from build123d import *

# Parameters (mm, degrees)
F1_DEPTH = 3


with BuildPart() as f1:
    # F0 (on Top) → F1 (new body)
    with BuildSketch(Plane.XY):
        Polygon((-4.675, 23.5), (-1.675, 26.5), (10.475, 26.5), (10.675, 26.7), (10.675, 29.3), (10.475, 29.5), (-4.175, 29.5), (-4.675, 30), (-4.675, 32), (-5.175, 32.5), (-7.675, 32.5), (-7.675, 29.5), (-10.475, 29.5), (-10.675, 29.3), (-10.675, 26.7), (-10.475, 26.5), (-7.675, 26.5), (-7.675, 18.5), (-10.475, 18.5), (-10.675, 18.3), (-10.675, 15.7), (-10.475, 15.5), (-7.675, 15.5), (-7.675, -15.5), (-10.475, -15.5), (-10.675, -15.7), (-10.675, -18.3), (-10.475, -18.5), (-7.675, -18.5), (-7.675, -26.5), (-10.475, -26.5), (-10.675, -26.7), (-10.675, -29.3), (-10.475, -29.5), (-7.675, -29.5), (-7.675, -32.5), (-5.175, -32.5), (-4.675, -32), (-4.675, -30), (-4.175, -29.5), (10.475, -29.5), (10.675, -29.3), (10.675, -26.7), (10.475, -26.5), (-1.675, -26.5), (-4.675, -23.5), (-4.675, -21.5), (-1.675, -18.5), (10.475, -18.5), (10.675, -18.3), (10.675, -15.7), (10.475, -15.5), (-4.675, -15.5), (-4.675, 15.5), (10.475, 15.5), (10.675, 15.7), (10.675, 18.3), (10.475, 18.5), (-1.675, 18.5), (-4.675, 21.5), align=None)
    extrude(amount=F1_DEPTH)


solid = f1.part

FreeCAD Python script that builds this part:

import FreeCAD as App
import Part
import Sketcher
Q = App.Units.Quantity


def add_polygon(sketch, points):
    """Adds a closed chain of lines whose ends are joined by coincident constraints."""
    first, n = sketch.GeometryCount, len(points)
    for a, b in zip(points, points[1:] + points[:1]):
        sketch.addGeometry(Part.LineSegment(App.Vector(*a, 0), App.Vector(*b, 0)), False)
    for i in range(n):
        sketch.addConstraint(Sketcher.Constraint("Coincident", first + i, 2, first + (i + 1) % n, 1))

doc = App.newDocument("Part")
params = doc.addObject("Spreadsheet::Sheet", "Params")
for row, (alias, value) in enumerate([
    ("sketch1_height", "2 mm"),
    ("sketch1_height2", "3 mm"),
    ("sketch1_height3", "8 mm"),
    ("sketch1_height4", "31 mm"),
    ("sketch1_width", "2.5 mm"),
    ("pad1_length", "3 mm"),
], start=1):
    params.set(f"A{row}", alias)
    params.set(f"B{row}", "=" + value)
    params.setAlias(f"B{row}", alias)

body = doc.addObject("PartDesign::Body", "Body")

sketch1 = body.newObject("Sketcher::SketchObject", "Sketch")
sketch1.AttachmentSupport = (doc.getObject("XY_Plane"), [""])
sketch1.MapMode = "FlatFace"
add_polygon(sketch1, [(-4.67, 23.5), (-1.68, 26.5), (10.47, 26.5), (10.68, 26.7), (10.68, 29.3), (10.47, 29.5), (-4.17, 29.5), (-4.67, 30), (-4.67, 32), (-5.17, 32.5), (-7.67, 32.5), (-7.67, 29.5), (-10.47, 29.5), (-10.68, 29.3), (-10.68, 26.7), (-10.47, 26.5), (-7.67, 26.5), (-7.67, 18.5), (-10.47, 18.5), (-10.68, 18.3), (-10.68, 15.7), (-10.47, 15.5), (-7.67, 15.5), (-7.67, -15.5), (-10.47, -15.5), (-10.68, -15.7), (-10.68, -18.3), (-10.47, -18.5), (-7.67, -18.5), (-7.67, -26.5), (-10.47, -26.5), (-10.68, -26.7), (-10.68, -29.3), (-10.47, -29.5), (-7.67, -29.5), (-7.67, -32.5), (-5.17, -32.5), (-4.67, -32), (-4.67, -30), (-4.17, -29.5), (10.47, -29.5), (10.68, -29.3), (10.68, -26.7), (10.47, -26.5), (-1.68, -26.5), (-4.67, -23.5), (-4.67, -21.5), (-1.68, -18.5), (10.47, -18.5), (10.68, -18.3), (10.68, -15.7), (10.47, -15.5), (-4.67, -15.5), (-4.67, 15.5), (10.47, 15.5), (10.68, 15.7), (10.68, 18.3), (10.47, 18.5), (-1.68, 18.5), (-4.67, 21.5)])
sketch1.addConstraint([
    Sketcher.Constraint("Horizontal", 1),
    Sketcher.Constraint("Vertical", 3),
    Sketcher.Constraint("Horizontal", 5),
    Sketcher.Constraint("Vertical", 7),
    Sketcher.Constraint("Horizontal", 9),
    Sketcher.Constraint("Vertical", 10),
    Sketcher.Constraint("Horizontal", 11),
    Sketcher.Constraint("Vertical", 13),
    Sketcher.Constraint("Horizontal", 15),
    Sketcher.Constraint("Vertical", 16),
    Sketcher.Constraint("Horizontal", 17),
    Sketcher.Constraint("Vertical", 19),
    Sketcher.Constraint("Horizontal", 21),
    Sketcher.Constraint("Vertical", 22),
    Sketcher.Constraint("Horizontal", 23),
    Sketcher.Constraint("Vertical", 25),
    Sketcher.Constraint("Horizontal", 27),
    Sketcher.Constraint("Vertical", 28),
    Sketcher.Constraint("Horizontal", 29),
    Sketcher.Constraint("Vertical", 31),
    Sketcher.Constraint("Horizontal", 33),
    Sketcher.Constraint("Vertical", 34),
    Sketcher.Constraint("Horizontal", 35),
    Sketcher.Constraint("Vertical", 37),
    Sketcher.Constraint("Horizontal", 39),
    Sketcher.Constraint("Vertical", 41),
    Sketcher.Constraint("Horizontal", 43),
    Sketcher.Constraint("Vertical", 45),
    Sketcher.Constraint("Horizontal", 47),
    Sketcher.Constraint("Vertical", 49),
    Sketcher.Constraint("Horizontal", 51),
    Sketcher.Constraint("Vertical", 52),
    Sketcher.Constraint("Horizontal", 53),
    Sketcher.Constraint("Vertical", 55),
    Sketcher.Constraint("Horizontal", 57),
    Sketcher.Constraint("Vertical", 59),
    Sketcher.Constraint("Symmetric", 1, 2, 29, 2, -1, 1),
    Sketcher.Constraint("Symmetric", 2, 2, 30, 2, -1, 1),
    Sketcher.Constraint("Symmetric", 4, 2, 32, 2, -1, 1),
    Sketcher.Constraint("Symmetric", 11, 2, 39, 2, -1, 1),
    Sketcher.Constraint("Symmetric", 12, 2, 40, 2, -1, 1),
    Sketcher.Constraint("Symmetric", 14, 2, 42, 2, -1, 1),
    Sketcher.Constraint("Symmetric", 17, 2, 47, 2, -1, 1),
    Sketcher.Constraint("Symmetric", 18, 2, 48, 2, -1, 1),
    Sketcher.Constraint("Symmetric", 20, 2, 50, 2, -1, 1),
    Sketcher.Constraint("Symmetric", 23, 2, 53, 2, -1, 1),
    Sketcher.Constraint("Symmetric", 24, 2, 54, 2, -1, 1),
    Sketcher.Constraint("Symmetric", 26, 2, 56, 2, -1, 1),
    Sketcher.Constraint("Symmetric", 4, 2, 11, 2, -2),
    Sketcher.Constraint("Symmetric", 3, 2, 12, 2, -2),
    Sketcher.Constraint("Symmetric", 1, 2, 14, 2, -2),
    Sketcher.Constraint("Symmetric", 26, 2, 47, 2, -2),
    Sketcher.Constraint("Symmetric", 25, 2, 48, 2, -2),
    Sketcher.Constraint("Symmetric", 23, 2, 50, 2, -2),
    Sketcher.Constraint("Symmetric", 9, 2, 34, 2, -1),
    Sketcher.Constraint("Symmetric", 7, 2, 36, 2, -1),
    Sketcher.Constraint("Symmetric", 45, 2, 58, 2, -1),
    Sketcher.Constraint("Parallel", 0, 2),
    Sketcher.Constraint("Perpendicular", 2, 4),
    Sketcher.Constraint("Parallel", 4, 6),
    Sketcher.Constraint("Parallel", 6, 8),
    Sketcher.Constraint("Perpendicular", 8, 12),
    Sketcher.Constraint("Perpendicular", 12, 14),
    Sketcher.Constraint("Perpendicular", 14, 18),
    Sketcher.Constraint("Perpendicular", 18, 20),
    Sketcher.Constraint("Perpendicular", 20, 24),
    Sketcher.Constraint("Perpendicular", 30, 32),
    Sketcher.Constraint("Perpendicular", 32, 36),
    Sketcher.Constraint("Parallel", 36, 38),
    Sketcher.Constraint("Perpendicular", 40, 42),
    Sketcher.Constraint("Parallel", 42, 44),
    Sketcher.Constraint("Perpendicular", 44, 46),
    Sketcher.Constraint("Perpendicular", 48, 50),
    Sketcher.Constraint("Perpendicular", 54, 56),
    Sketcher.Constraint("Parallel", 56, 58),
    Sketcher.Constraint("Vertical", 1, 2, 4, 2),
    Sketcher.Constraint("Vertical", 10, 2, 15, 2),
    Sketcher.Constraint("Vertical", 14, 2, 17, 2),
    Sketcher.Constraint("Vertical", 13, 2, 18, 2),
    Sketcher.Constraint("Vertical", 17, 2, 20, 2),
    Sketcher.Constraint("Vertical", 16, 2, 21, 2),
    Sketcher.Constraint("Vertical", 22, 2, 27, 2),
    Sketcher.Constraint("Vertical", 5, 2, 38, 2),
    Sketcher.Constraint("Vertical", 0, 2, 43, 2),
    Sketcher.Constraint("Vertical", 37, 2, 44, 2),
    Sketcher.Constraint("Vertical", 43, 2, 46, 2),
    Sketcher.Constraint("Vertical", 45, 2, 51, 2),
    Sketcher.Constraint("Equal", 13, 19),
    Sketcher.Constraint("Equal", 37, 45),
    Sketcher.Constraint("Equal", 6, 8),
    Sketcher.Constraint("DistanceY", 7, 1, 7, 2, Q("2 mm")),
    Sketcher.Constraint("DistanceY", 10, 2, 10, 1, Q("3 mm")),
    Sketcher.Constraint("DistanceY", 16, 2, 16, 1, Q("8 mm")),
    Sketcher.Constraint("DistanceY", 22, 2, 22, 1, Q("31 mm")),
    Sketcher.Constraint("DistanceX", 9, 2, 9, 1, Q("2.5 mm")),
    Sketcher.Constraint("DistanceX", 11, 2, 11, 1, Q("2.8 mm")),
    Sketcher.Constraint("DistanceY", 3, 1, 3, 2, Q("2.6 mm")),
    Sketcher.Constraint("DistanceY", -1, 1, 6, 2, Q("30 mm")),
    Sketcher.Constraint("DistanceX", 1, 1, 1, 2, Q("12.15 mm")),
])
sketch1.setExpression("Constraints[150]", "Params.sketch1_height")
sketch1.setExpression("Constraints[151]", "Params.sketch1_height2")
sketch1.setExpression("Constraints[152]", "Params.sketch1_height3")
sketch1.setExpression("Constraints[153]", "Params.sketch1_height4")
sketch1.setExpression("Constraints[154]", "Params.sketch1_width")
pad1 = body.newObject("PartDesign::Pad", "Pad")
pad1.Profile = sketch1
pad1.setExpression("Length", "Params.pad1_length")

doc.recompute()
